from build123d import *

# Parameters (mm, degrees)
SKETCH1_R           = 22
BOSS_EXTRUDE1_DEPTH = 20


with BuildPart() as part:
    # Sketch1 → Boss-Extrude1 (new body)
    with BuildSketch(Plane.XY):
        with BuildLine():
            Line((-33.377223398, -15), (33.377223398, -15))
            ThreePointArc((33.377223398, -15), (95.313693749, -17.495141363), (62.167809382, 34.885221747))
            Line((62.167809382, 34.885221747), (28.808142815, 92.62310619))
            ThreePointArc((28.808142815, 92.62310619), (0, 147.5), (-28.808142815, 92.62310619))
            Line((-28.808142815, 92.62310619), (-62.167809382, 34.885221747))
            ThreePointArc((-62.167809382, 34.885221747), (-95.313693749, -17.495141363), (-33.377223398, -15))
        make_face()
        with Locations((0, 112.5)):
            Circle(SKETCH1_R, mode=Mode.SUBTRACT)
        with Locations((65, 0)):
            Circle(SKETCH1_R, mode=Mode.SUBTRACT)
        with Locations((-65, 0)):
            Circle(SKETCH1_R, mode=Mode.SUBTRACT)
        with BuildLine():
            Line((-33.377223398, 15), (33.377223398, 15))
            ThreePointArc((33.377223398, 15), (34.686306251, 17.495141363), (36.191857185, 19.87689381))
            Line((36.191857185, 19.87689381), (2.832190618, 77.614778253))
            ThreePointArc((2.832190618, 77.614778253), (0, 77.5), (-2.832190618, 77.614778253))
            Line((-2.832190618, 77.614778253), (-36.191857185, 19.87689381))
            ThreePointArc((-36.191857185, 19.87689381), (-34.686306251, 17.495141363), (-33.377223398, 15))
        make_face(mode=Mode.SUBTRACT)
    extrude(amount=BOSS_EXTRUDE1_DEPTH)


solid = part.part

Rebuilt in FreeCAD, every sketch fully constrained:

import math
import FreeCAD as App
import Part
import Sketcher
from FreeCAD import Vector
Q = App.Units.Quantity

doc = App.newDocument("Part")
body = doc.addObject("PartDesign::Body", "Body")

sketch1 = body.newObject("Sketcher::SketchObject", "Sketch")
sketch1.AttachmentSupport = (doc.getObject("XY_Plane"), [""])
sketch1.MapMode = "FlatFace"
sketch1.addGeometry([
    Part.LineSegment(Vector(-33, -15, 0), Vector(33, -15, 0)),
    Part.ArcOfCircle(Part.Circle(Vector(65, 0, 0), Vector(0, 0, 1), 35), math.radians(-155), math.radians(95)),
    Part.LineSegment(Vector(62, 35, 0), Vector(29, 93, 0)),
    Part.ArcOfCircle(Part.Circle(Vector(0, 112, 0), Vector(0, 0, 1), 35), math.radians(-35), math.radians(215)),
    Part.LineSegment(Vector(-29, 93, 0), Vector(-62, 35, 0)),
    Part.ArcOfCircle(Part.Circle(Vector(-65, 0, 0), Vector(0, 0, 1), 35), math.radians(85), math.radians(335)),
    Part.Circle(Vector(-65, 0, 0), Vector(0, 0, 1), 22),
    Part.Circle(Vector(65, 0, 0), Vector(0, 0, 1), 22),
    Part.LineSegment(Vector(33, 15, 0), Vector(-33, 15, 0)),
    Part.ArcOfCircle(Part.Circle(Vector(-65, 0, 0), Vector(0, 0, 1), 35), math.radians(25.38), math.radians(34.6)),
    Part.LineSegment(Vector(-36, 20, 0), Vector(-3, 78, 0)),
    Part.ArcOfCircle(Part.Circle(Vector(0, 113, 0), Vector(0, 0, 1), 35), math.radians(-94.64), math.radians(-85.36)),
    Part.LineSegment(Vector(3, 78, 0), Vector(36, 20, 0)),
    Part.ArcOfCircle(Part.Circle(Vector(65, 0, 0), Vector(0, 0, 1), 35), math.radians(145.4), math.radians(154.62)),
    Part.Circle(Vector(0, 112, 0), Vector(0, 0, 1), 22),
], False)
sketch1.addConstraint([
    Sketcher.Constraint("Coincident", 0, 2, 1, 1),
    Sketcher.Constraint("Coincident", 1, 2, 2, 1),
    Sketcher.Constraint("Coincident", 2, 2, 3, 1),
    Sketcher.Constraint("Coincident", 3, 2, 4, 1),
    Sketcher.Constraint("Coincident", 4, 2, 5, 1),
    Sketcher.Constraint("Coincident", 5, 2, 0, 1),
    Sketcher.Constraint("Coincident", 8, 2, 9, 1),
    Sketcher.Constraint("Coincident", 9, 2, 10, 1),
    Sketcher.Constraint("Coincident", 10, 2, 11, 1),
    Sketcher.Constraint("Coincident", 11, 2, 12, 1),
    Sketcher.Constraint("Coincident", 12, 2, 13, 1),
    Sketcher.Constraint("Coincident", 13, 2, 8, 1),
    Sketcher.Constraint("Horizontal", 0),
    Sketcher.Constraint("Horizontal", 8),
    Sketcher.Constraint("Coincident", 6, 3, 5, 3),
    Sketcher.Constraint("Coincident", 7, 3, 1, 3),
    Sketcher.Constraint("Coincident", 9, 3, 5, 3),
    Sketcher.Constraint("Coincident", 11, 3, 3, 3),
    Sketcher.Constraint("Coincident", 13, 3, 1, 3),
    Sketcher.Constraint("Coincident", 14, 3, 3, 3),
    Sketcher.Constraint("Equal", 1, 3),
    Sketcher.Constraint("Equal", 3, 5),
    Sketcher.Constraint("Equal", 6, 7),
    Sketcher.Constraint("Equal", 5, 9),
    Sketcher.Constraint("Equal", 9, 11),
    Sketcher.Constraint("Equal", 11, 13),
    Sketcher.Constraint("Equal", 7, 14),
    Sketcher.Constraint("Symmetric", 1, 3, 5, 3, -1, 1),
    Sketcher.Constraint("Symmetric", 2, 2, 3, 2, -2),
    Sketcher.Constraint("Symmetric", 1, 2, 4, 2, -2),
    Sketcher.Constraint("Parallel", 4, 10),
    Sketcher.Constraint("Parallel", 2, 12),
    Sketcher.Constraint("Horizontal", 10, 2, 11, 2),
    Sketcher.Constraint("Vertical", 5, 2, 8, 2),
    Sketcher.Constraint("Equal", 4, 10),
    Sketcher.Constraint("Diameter", 6, Q("44 mm")),
    Sketcher.Constraint("Radius", 1, Q("35 mm")),
    Sketcher.Constraint("DistanceX", -1, 1, 1, 3, Q("65 mm")),
    Sketcher.Constraint("DistanceY", 0, 2, -1, 1, Q("15 mm")),
    Sketcher.Constraint("DistanceY", -1, 1, 3, 3, Q("112.5 mm")),
    Sketcher.Constraint("Distance", 2, Q("66.682311 mm")),
    Sketcher.Constraint("DistanceX", -1, 1, 1, 2, Q("62.167809 mm")),
])
pad1 = body.newObject("PartDesign::Pad", "Pad")
pad1.Profile = sketch1
pad1.Length = 20

doc.recompute()
